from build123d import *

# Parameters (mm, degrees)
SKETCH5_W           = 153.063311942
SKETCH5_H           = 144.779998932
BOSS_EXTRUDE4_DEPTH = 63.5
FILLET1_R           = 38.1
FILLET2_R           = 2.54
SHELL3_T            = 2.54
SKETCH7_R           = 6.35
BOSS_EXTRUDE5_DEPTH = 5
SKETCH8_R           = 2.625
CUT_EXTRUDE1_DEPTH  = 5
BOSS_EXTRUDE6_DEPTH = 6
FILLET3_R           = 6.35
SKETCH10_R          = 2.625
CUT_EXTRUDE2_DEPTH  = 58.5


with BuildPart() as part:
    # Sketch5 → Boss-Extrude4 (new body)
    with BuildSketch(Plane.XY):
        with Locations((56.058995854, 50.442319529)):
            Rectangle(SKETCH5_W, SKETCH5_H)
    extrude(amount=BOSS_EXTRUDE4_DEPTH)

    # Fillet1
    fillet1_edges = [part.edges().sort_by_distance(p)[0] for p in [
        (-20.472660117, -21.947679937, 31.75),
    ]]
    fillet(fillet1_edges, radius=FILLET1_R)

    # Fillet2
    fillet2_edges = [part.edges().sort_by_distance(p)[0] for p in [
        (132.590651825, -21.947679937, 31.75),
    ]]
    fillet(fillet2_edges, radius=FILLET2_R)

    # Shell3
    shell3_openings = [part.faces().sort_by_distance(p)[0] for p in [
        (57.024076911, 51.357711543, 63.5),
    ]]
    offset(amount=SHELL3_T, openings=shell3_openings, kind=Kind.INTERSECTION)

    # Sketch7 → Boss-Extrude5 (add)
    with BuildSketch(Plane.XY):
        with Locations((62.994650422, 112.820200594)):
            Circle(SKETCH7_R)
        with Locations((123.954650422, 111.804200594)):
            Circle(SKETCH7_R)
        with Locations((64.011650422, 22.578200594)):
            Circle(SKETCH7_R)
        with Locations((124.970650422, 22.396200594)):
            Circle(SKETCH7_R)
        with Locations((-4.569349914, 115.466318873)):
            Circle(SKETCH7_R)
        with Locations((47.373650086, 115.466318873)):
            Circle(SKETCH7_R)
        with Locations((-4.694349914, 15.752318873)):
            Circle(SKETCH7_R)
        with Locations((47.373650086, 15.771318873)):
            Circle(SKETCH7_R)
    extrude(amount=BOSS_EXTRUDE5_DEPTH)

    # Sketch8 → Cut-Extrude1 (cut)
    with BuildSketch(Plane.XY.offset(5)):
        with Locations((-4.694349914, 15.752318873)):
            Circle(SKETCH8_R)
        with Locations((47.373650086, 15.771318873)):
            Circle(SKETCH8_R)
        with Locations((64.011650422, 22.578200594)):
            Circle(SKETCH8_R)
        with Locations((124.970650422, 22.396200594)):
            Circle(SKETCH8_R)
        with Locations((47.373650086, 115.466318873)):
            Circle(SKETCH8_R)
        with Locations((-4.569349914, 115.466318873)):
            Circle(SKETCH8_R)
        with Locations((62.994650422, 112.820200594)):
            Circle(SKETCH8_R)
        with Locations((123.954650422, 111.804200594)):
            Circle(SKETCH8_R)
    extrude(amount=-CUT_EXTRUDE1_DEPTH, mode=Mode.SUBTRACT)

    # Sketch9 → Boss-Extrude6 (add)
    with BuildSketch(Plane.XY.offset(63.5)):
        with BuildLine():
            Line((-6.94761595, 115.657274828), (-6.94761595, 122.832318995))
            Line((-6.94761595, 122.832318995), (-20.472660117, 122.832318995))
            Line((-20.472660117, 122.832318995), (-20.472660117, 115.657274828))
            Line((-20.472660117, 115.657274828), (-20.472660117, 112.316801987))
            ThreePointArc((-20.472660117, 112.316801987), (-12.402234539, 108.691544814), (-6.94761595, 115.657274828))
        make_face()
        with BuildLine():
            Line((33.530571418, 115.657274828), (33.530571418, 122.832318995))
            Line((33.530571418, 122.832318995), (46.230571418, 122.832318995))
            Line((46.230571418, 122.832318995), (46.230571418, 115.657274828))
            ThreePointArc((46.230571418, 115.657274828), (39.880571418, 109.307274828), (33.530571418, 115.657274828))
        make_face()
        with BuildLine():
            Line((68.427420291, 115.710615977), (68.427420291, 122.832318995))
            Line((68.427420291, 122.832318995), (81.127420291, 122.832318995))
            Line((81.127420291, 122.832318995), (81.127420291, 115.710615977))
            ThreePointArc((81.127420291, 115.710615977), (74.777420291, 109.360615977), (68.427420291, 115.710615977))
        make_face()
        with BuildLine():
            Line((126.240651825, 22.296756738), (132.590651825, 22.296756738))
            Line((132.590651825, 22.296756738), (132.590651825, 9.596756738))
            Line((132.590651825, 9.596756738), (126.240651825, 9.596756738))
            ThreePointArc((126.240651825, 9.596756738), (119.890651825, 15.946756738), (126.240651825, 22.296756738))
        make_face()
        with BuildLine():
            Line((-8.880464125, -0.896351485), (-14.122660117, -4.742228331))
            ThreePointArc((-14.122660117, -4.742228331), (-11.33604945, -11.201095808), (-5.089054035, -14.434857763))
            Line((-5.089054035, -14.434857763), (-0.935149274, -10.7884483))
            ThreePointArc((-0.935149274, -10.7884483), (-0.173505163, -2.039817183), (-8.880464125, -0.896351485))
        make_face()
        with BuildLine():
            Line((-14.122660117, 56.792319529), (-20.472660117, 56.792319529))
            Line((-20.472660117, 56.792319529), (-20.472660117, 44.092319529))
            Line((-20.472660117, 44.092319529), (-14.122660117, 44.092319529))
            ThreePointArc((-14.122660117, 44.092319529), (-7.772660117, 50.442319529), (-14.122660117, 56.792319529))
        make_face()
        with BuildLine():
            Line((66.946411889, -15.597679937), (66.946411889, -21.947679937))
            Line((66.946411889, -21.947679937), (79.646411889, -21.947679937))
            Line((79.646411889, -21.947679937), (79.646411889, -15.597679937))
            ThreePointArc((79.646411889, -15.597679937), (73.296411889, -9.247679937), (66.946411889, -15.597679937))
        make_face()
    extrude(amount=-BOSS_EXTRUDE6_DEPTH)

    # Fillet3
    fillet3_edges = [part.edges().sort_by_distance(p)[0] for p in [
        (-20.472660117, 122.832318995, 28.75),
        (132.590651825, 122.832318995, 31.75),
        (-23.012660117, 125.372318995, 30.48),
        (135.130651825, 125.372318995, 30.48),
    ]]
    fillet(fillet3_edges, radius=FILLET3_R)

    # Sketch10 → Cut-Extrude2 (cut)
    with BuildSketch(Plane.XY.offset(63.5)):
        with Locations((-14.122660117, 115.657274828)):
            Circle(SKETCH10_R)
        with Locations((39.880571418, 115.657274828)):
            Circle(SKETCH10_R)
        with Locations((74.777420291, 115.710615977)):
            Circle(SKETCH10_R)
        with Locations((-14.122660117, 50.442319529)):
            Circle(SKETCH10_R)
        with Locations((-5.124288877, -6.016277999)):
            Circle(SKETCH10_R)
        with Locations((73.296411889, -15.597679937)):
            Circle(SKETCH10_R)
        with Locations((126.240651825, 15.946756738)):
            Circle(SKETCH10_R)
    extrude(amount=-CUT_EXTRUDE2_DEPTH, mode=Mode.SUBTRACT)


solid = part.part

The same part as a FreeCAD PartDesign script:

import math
import FreeCAD as App
import Part
import Sketcher

V = App.Vector
Q = App.Units.Quantity


def edges_at(feature, points):
    """Names of the edges that pass closest to the given points."""
    edges = feature.Shape.Edges
    near = lambda p: min(range(len(edges)), key=lambda i: edges[i].distToShape(Part.Vertex(*p))[0])
    return sorted({f"Edge{near(p) + 1}" for p in points})


def faces_at(feature, points):
    """Names of the faces that lie closest to the given points."""
    faces = feature.Shape.Faces
    near = lambda p: min(range(len(faces)), key=lambda i: faces[i].distToShape(Part.Vertex(*p))[0])
    return sorted({f"Face{near(p) + 1}" for p in points})


def add_polygon(sketch, points):
    """Adds a closed chain of lines whose ends are joined by coincident constraints."""
    first, n = sketch.GeometryCount, len(points)
    for a, b in zip(points, points[1:] + points[:1]):
        sketch.addGeometry(Part.LineSegment(App.Vector(*a, 0), App.Vector(*b, 0)), False)
    for i in range(n):
        sketch.addConstraint(Sketcher.Constraint("Coincident", first + i, 2, first + (i + 1) % n, 1))

doc = App.newDocument("Part")
body = doc.addObject("PartDesign::Body", "Body")

# Sketch on XY plane
sketch1 = body.newObject("Sketcher::SketchObject", "Sketch")
sketch1.AttachmentSupport = (doc.getObject("XY_Plane"), [""])
sketch1.MapMode = "FlatFace"
add_polygon(sketch1, [(-20.47266, 122.832319), (-20.47266, -21.94768), (132.590652, -21.94768), (132.590652, 122.832319)])  # lines 0-3
sketch1.addConstraint([
    Sketcher.Constraint("Vertical", 0),
    Sketcher.Constraint("Horizontal", 1),
    Sketcher.Constraint("Vertical", 2),
    Sketcher.Constraint("Horizontal", 3),
    Sketcher.Constraint("DistanceY", 0, 2, 0, 1, Q("5.7 in")),
    Sketcher.Constraint("DistanceX", 1, 1, 1, 2, 153.063312),
    Sketcher.Constraint("DistanceX", 0, 2, -1, 1, 20.47266),
    Sketcher.Constraint("DistanceY", 0, 2, -1, 1, 21.94768),
])
pad1 = body.newObject("PartDesign::Pad", "Pad")
pad1.Profile = sketch1
pad1.Length = Q("2.5 in")
doc.recompute()

fillet = body.newObject("PartDesign::Fillet", "Fillet")
fillet.Base = (pad1, edges_at(pad1, [(-20.473, -21.948, 31.75)]))
fillet.Radius = Q("1.5 in")
doc.recompute()

fillet2 = body.newObject("PartDesign::Fillet", "Fillet001")
fillet2.Base = (fillet, edges_at(fillet, [(132.591, -21.948, 31.75)]))
fillet2.Radius = Q("0.1 in")
doc.recompute()

thickness = body.newObject("PartDesign::Thickness", "Thickness")
thickness.Base = (fillet2, faces_at(fillet2, [(56.059, 50.442, 63.5)]))
thickness.Value = Q("0.1 in")
thickness.Reversed = False
thickness.Join = "Intersection"

# Sketch on XY plane
sketch2 = body.newObject("Sketcher::SketchObject", "Sketch001")
sketch2.AttachmentSupport = (doc.getObject("XY_Plane"), [""])
sketch2.MapMode = "FlatFace"
sketch2.addGeometry([
    Part.Circle(V(62.99465, 112.820201, 0), V(0, 0, 1), 6.35),  # 0
    Part.Circle(V(123.95465, 111.804201, 0), V(0, 0, 1), 6.35),  # 1
    Part.Circle(V(64.01165, 22.578201, 0), V(0, 0, 1), 6.35),  # 2
    Part.Circle(V(124.97065, 22.396201, 0), V(0, 0, 1), 6.35),  # 3
    Part.Circle(V(-4.56935, 115.466319, 0), V(0, 0, 1), 6.35),  # 4
    Part.Circle(V(47.37365, 115.466319, 0), V(0, 0, 1), 6.35),  # 5
    Part.Circle(V(-4.69435, 15.752319, 0), V(0, 0, 1), 6.35),  # 6
    Part.Circle(V(47.37365, 15.771319, 0), V(0, 0, 1), 6.35),  # 7
], False)
sketch2.addConstraint([
    Sketcher.Constraint("Equal", 0, 1),
    Sketcher.Constraint("Equal", 1, 2),
    Sketcher.Constraint("Equal", 2, 3),
    Sketcher.Constraint("Equal", 3, 4),
    Sketcher.Constraint("Equal", 4, 5),
    Sketcher.Constraint("Equal", 5, 6),
    Sketcher.Constraint("Equal", 6, 7),
    Sketcher.Constraint("Horizontal", 4, 3, 5, 3),
    Sketcher.Constraint("Vertical", 5, 3, 7, 3),
    Sketcher.Constraint("Diameter", 0, Q("0.5 in")),
    Sketcher.Constraint("DistanceX", 0, 3, 1, 3, Q("2.4 in")),
    Sketcher.Constraint("DistanceX", 4, 3, 3, 3, Q("5.1 in")),
    Sketcher.Constraint("DistanceY", 1, 3, 0, 3, Q("0.04 in")),
    Sketcher.Constraint("DistanceX", 1, 3, 3, 3, Q("0.04 in")),
    Sketcher.Constraint("DistanceY", 3, 3, 1, 3, Q("3.52 in")),
    Sketcher.Constraint("DistanceX", 5, 3, 0, 3, Q("0.615 in")),
    Sketcher.Constraint("DistanceY", 7, 3, 5, 3, Q("3.925 in")),
    Sketcher.Constraint("DistanceY", -1, 1, 0, 3, 112.820201),
    Sketcher.Constraint("DistanceY", -1, 1, 2, 3, 22.578201),
    Sketcher.Constraint("DistanceX", 0, 3, 2, 3, 1.017),
    Sketcher.Constraint("DistanceX", 6, 3, 2, 3, 68.706),
    Sketcher.Constraint("DistanceY", 6, 3, 4, 3, 99.714),
    Sketcher.Constraint("DistanceX", -1, 1, 0, 3, 62.99465),
    Sketcher.Constraint("DistanceY", -1, 1, 4, 3, 115.466319),
])
pad2 = body.newObject("PartDesign::Pad", "Pad001")
pad2.Profile = sketch2
pad2.Length = 5

# Sketch on XY plane
sketch3 = body.newObject("Sketcher::SketchObject", "Sketch002")
sketch3.AttachmentSupport = (doc.getObject("XY_Plane"), [""])
sketch3.MapMode = "FlatFace"
sketch3.AttachmentOffset = App.Placement(V(0, 0, 5), App.Rotation())
sketch3.addGeometry([
    Part.Circle(V(-4.69435, 15.752319, 0), V(0, 0, 1), 2.625),  # 0
    Part.Circle(V(47.37365, 15.771319, 0), V(0, 0, 1), 2.625),  # 1
    Part.Circle(V(64.01165, 22.578201, 0), V(0, 0, 1), 2.625),  # 2
    Part.Circle(V(124.97065, 22.396201, 0), V(0, 0, 1), 2.625),  # 3
    Part.Circle(V(47.37365, 115.466319, 0), V(0, 0, 1), 2.625),  # 4
    Part.Circle(V(-4.56935, 115.466319, 0), V(0, 0, 1), 2.625),  # 5
    Part.Circle(V(62.99465, 112.820201, 0), V(0, 0, 1), 2.625),  # 6
    Part.Circle(V(123.95465, 111.804201, 0), V(0, 0, 1), 2.625),  # 7
], False)
sketch3.addConstraint([
    Sketcher.Constraint("Equal", 0, 1),
    Sketcher.Constraint("Equal", 1, 2),
    Sketcher.Constraint("Equal", 2, 3),
    Sketcher.Constraint("Equal", 3, 4),
    Sketcher.Constraint("Equal", 4, 5),
    Sketcher.Constraint("Equal", 5, 6),
    Sketcher.Constraint("Equal", 6, 7),
    Sketcher.Constraint("Horizontal", 4, 3, 5, 3),
    Sketcher.Constraint("Vertical", 1, 3, 4, 3),
    Sketcher.Constraint("DistanceX", 5, 3, 3, 3, Q("5.1 in")),
    Sketcher.Constraint("DistanceX", 6, 3, 7, 3, Q("2.4 in")),
    Sketcher.Constraint("Diameter", 0, 5.25),
    Sketcher.Constraint("DistanceX", 5, 3, 6, 3, Q("2.66 in")),
    Sketcher.Constraint("DistanceY", 3, 3, 6, 3, Q("3.56 in")),
    Sketcher.Constraint("DistanceY", 7, 3, 6, 3, Q("0.04 in")),
    Sketcher.Constraint("DistanceX", 1, 3, 3, 3, Q("3.055 in")),
    Sketcher.Constraint("DistanceY", 1, 3, 4, 3, Q("3.925 in")),
    Sketcher.Constraint("DistanceY", -1, 1, 2, 3, 22.578201),
    Sketcher.Constraint("DistanceY", -1, 1, 3, 3, 22.396201),
    Sketcher.Constraint("DistanceX", 0, 3, 1, 3, 52.068),
    Sketcher.Constraint("DistanceY", 0, 3, 1, 3, 0.019),
    Sketcher.Constraint("DistanceX", 1, 3, 2, 3, 16.638),
    Sketcher.Constraint("DistanceX", 0, 3, -1, 1, 4.69435),
    Sketcher.Constraint("DistanceY", -1, 1, 0, 3, 15.752319),
])
pocket1 = body.newObject("PartDesign::Pocket", "Pocket")
pocket1.Profile = sketch3
pocket1.Length = 5

# Sketch on XY plane
sketch4 = body.newObject("Sketcher::SketchObject", "Sketch003")
sketch4.AttachmentSupport = (doc.getObject("XY_Plane"), [""])
sketch4.MapMode = "FlatFace"
sketch4.AttachmentOffset = App.Placement(V(0, 0, 2.5 * 25.4), App.Rotation())
sketch4.addGeometry([
    Part.LineSegment(V(-6.947616, 115.657275, 0), V(-6.947616, 122.832319, 0)),  # 0
    Part.LineSegment(V(-6.947616, 122.832319, 0), V(-20.47266, 122.832319, 0)),  # 1
    Part.LineSegment(V(-20.47266, 122.832319, 0), V(-20.47266, 112.316802, 0)),  # 2
    Part.ArcOfCircle(Part.Circle(V(-14.12266, 115.657275, 0), V(0, 0, 1), 7.175044), math.radians(-152.252995), math.radians(0)),  # 3
    Part.LineSegment(V(33.530571, 122.832319, 0), V(33.530571, 115.657275, 0)),  # 4
    Part.ArcOfCircle(Part.Circle(V(39.880571, 115.657275, 0), V(0, 0, 1), 6.35), math.radians(180), math.radians(360)),  # 5
    Part.LineSegment(V(46.230571, 115.657275, 0), V(46.230571, 122.832319, 0)),  # 6
    Part.LineSegment(V(46.230571, 122.832319, 0), V(33.530571, 122.832319, 0)),  # 7
    Part.LineSegment(V(68.42742, 122.832319, 0), V(68.42742, 115.710616, 0)),  # 8
    Part.ArcOfCircle(Part.Circle(V(74.77742, 115.710616, 0), V(0, 0, 1), 6.35), math.radians(180), math.radians(360)),  # 9
    Part.LineSegment(V(81.12742, 115.710616, 0), V(81.12742, 122.832319, 0)),  # 10
    Part.LineSegment(V(81.12742, 122.832319, 0), V(68.42742, 122.832319, 0)),  # 11
    Part.LineSegment(V(132.590652, 22.296757, 0), V(126.240652, 22.296757, 0)),  # 12
    Part.ArcOfCircle(Part.Circle(V(126.240652, 15.946757, 0), V(0, 0, 1), 6.35), math.radians(90), math.radians(270)),  # 13
    Part.LineSegment(V(126.240652, 9.596757, 0), V(132.590652, 9.596757, 0)),  # 14
    Part.LineSegment(V(132.590652, 9.596757, 0), V(132.590652, 22.296757, 0)),  # 15
    Part.LineSegment(V(-8.880464, -0.896351, 0), V(-14.12266, -4.742228, 0)),  # 16
    Part.ArcOfCircle(Part.Circle(V(-3.683625, -4.068977, 0), V(0, 0, 1), 10.460723), math.radians(-176.309897), math.radians(-97.721205)),  # 17
    Part.LineSegment(V(-5.089054, -14.434858, 0), V(-0.935149, -10.788448, 0)),  # 18
    Part.ArcOfCircle(Part.Circle(V(-5.124289, -6.016278, 0), V(0, 0, 1), 6.35), math.radians(-48.722467), math.radians(126.265207)),  # 19
    Part.LineSegment(V(-14.12266, 56.79232, 0), V(-20.47266, 56.79232, 0)),  # 20
    Part.LineSegment(V(-20.47266, 56.79232, 0), V(-20.47266, 44.09232, 0)),  # 21
    Part.LineSegment(V(-20.47266, 44.09232, 0), V(-14.12266, 44.09232, 0)),  # 22
    Part.ArcOfCircle(Part.Circle(V(-14.12266, 50.44232, 0), V(0, 0, 1), 6.35), math.radians(-90), math.radians(90)),  # 23
    Part.LineSegment(V(66.946412, -15.59768, 0), V(66.946412, -21.94768, 0)),  # 24
    Part.LineSegment(V(66.946412, -21.94768, 0), V(79.646412, -21.94768, 0)),  # 25
    Part.LineSegment(V(79.646412, -21.94768, 0), V(79.646412, -15.59768, 0)),  # 26
    Part.ArcOfCircle(Part.Circle(V(73.296412, -15.59768, 0), V(0, 0, 1), 6.35), math.radians(0), math.radians(180)),  # 27
], False)
sketch4.addConstraint([
    Sketcher.Constraint("Coincident", 0, 2, 1, 1),
    Sketcher.Constraint("Coincident", 1, 2, 2, 1),
    Sketcher.Constraint("Coincident", 2, 2, 3, 1),
    Sketcher.Constraint("Tangent", 3, 2, 0, 1),
    Sketcher.Constraint("Tangent", 4, 2, 5, 1),
    Sketcher.Constraint("Tangent", 5, 2, 6, 1),
    Sketcher.Constraint("Coincident", 6, 2, 7, 1),
    Sketcher.Constraint("Coincident", 7, 2, 4, 1),
    Sketcher.Constraint("Tangent", 8, 2, 9, 1),
    Sketcher.Constraint("Tangent", 9, 2, 10, 1),
    Sketcher.Constraint("Coincident", 10, 2, 11, 1),
    Sketcher.Constraint("Coincident", 11, 2, 8, 1),
    Sketcher.Constraint("Tangent", 12, 2, 13, 1),
    Sketcher.Constraint("Tangent", 13, 2, 14, 1),
    Sketcher.Constraint("Coincident", 14, 2, 15, 1),
    Sketcher.Constraint("Coincident", 15, 2, 12, 1),
    Sketcher.Constraint("Coincident", 16, 2, 17, 1),
    Sketcher.Constraint("Coincident", 17, 2, 18, 1),
    Sketcher.Constraint("Tangent", 18, 2, 19, 1),
    Sketcher.Constraint("Tangent", 19, 2, 16, 1),
    Sketcher.Constraint("Coincident", 20, 2, 21, 1),
    Sketcher.Constraint("Coincident", 21, 2, 22, 1),
    Sketcher.Constraint("Tangent", 22, 2, 23, 1),
    Sketcher.Constraint("Tangent", 23, 2, 20, 1),
    Sketcher.Constraint("Coincident", 24, 2, 25, 1),
    Sketcher.Constraint("Coincident", 25, 2, 26, 1),
    Sketcher.Constraint("Tangent", 26, 2, 27, 1),
    Sketcher.Constraint("Tangent", 27, 2, 24, 1),
    Sketcher.Constraint("Vertical", 0),
    Sketcher.Constraint("Horizontal", 1),
    Sketcher.Constraint("Vertical", 2),
    Sketcher.Constraint("Vertical", 4),
    Sketcher.Constraint("Vertical", 6),
    Sketcher.Constraint("Horizontal", 7),
    Sketcher.Constraint("Vertical", 8),
    Sketcher.Constraint("Vertical", 10),
    Sketcher.Constraint("Horizontal", 11),
    Sketcher.Constraint("Horizontal", 12),
    Sketcher.Constraint("Horizontal", 14),
    Sketcher.Constraint("Vertical", 15),
    Sketcher.Constraint("Horizontal", 20),
    Sketcher.Constraint("Vertical", 21),
    Sketcher.Constraint("Horizontal", 22),
    Sketcher.Constraint("Vertical", 24),
    Sketcher.Constraint("Horizontal", 25),
    Sketcher.Constraint("Vertical", 26),
    Sketcher.Constraint("Equal", 5, 9),
    Sketcher.Constraint("Equal", 9, 13),
    Sketcher.Constraint("Equal", 13, 19),
    Sketcher.Constraint("Equal", 19, 23),
    Sketcher.Constraint("Equal", 23, 27),
    Sketcher.Constraint("Horizontal", 3, 3, 5, 3),
    Sketcher.Constraint("Horizontal", 1, 2, 6, 2),
    Sketcher.Constraint("Horizontal", 7, 2, 10, 2),
    Sketcher.Constraint("Vertical", 3, 3, 23, 3),
    Sketcher.Constraint("Vertical", 23, 3, 16, 2),
    Sketcher.Constraint("Vertical", 2, 2, 20, 2),
    Sketcher.Constraint("Equal", 14, 20),
    Sketcher.Constraint("Equal", 22, 24),
    Sketcher.Constraint("Radius", 5, Q("0.25 in")),
    Sketcher.Constraint("DistanceX", 12, 2, 12, 1, Q("0.25 in")),
    Sketcher.Constraint("DistanceY", 27, 3, 23, 3, Q("2.6 in")),
    Sketcher.Constraint("DistanceY", 23, 3, 0, 2, Q("2.85 in")),
    Sketcher.Constraint("Radius", 3, 7.175044),
    Sketcher.Constraint("Radius", 17, 10.460723),
    Sketcher.Constraint("DistanceY", 5, 3, 9, 3, Q("0.0021 in")),
    Sketcher.Constraint("DistanceX", 19, 2, 17, 3, Q("0.2046 in")),
    Sketcher.Constraint("DistanceY", -1, 1, 2, 2, 112.316802),
    Sketcher.Constraint("DistanceY", 19, 3, 17, 3, 1.947301),
    Sketcher.Constraint("DistanceX", 19, 3, 27, 3, 78.420701),
    Sketcher.Constraint("DistanceY", 27, 3, 19, 3, 9.581402),
    Sketcher.Constraint("DistanceY", 0, 1, 0, 2, 7.175044),
    Sketcher.Constraint("DistanceX", 3, 3, -1, 1, 14.12266),
    Sketcher.Constraint("DistanceX", -1, 1, 5, 3, 39.880571),
    Sketcher.Constraint("DistanceX", -1, 1, 9, 3, 74.77742),
    Sketcher.Constraint("DistanceX", -1, 1, 13, 3, 126.240652),
    Sketcher.Constraint("DistanceX", 19, 3, -1, 1, 5.124289),
    Sketcher.Constraint("DistanceX", 18, 2, -1, 1, 0.935149),
    Sketcher.Constraint("DistanceY", 13, 3, 9, 3, 99.763859),
])
pad3 = body.newObject("PartDesign::Pad", "Pad002")
pad3.Profile = sketch4
pad3.Length = 6
pad3.Reversed = True
doc.recompute()

fillet3 = body.newObject("PartDesign::Fillet", "Fillet002")
fillet3.Base = (pad3, edges_at(pad3, [
    (-20.473, 122.832, 28.75),
    (132.591, 122.832, 31.75),
    (-23.013, 125.372, 30.48),
    (135.131, 125.372, 30.48),
]))
fillet3.Radius = Q("0.25 in")

# Sketch on XY plane
sketch5 = body.newObject("Sketcher::SketchObject", "Sketch004")
sketch5.AttachmentSupport = (doc.getObject("XY_Plane"), [""])
sketch5.MapMode = "FlatFace"
sketch5.AttachmentOffset = App.Placement(V(0, 0, 2.5 * 25.4), App.Rotation())
sketch5.addGeometry([
    Part.Circle(V(-14.12266, 115.657275, 0), V(0, 0, 1), 2.625),  # 0
    Part.Circle(V(39.880571, 115.657275, 0), V(0, 0, 1), 2.625),  # 1
    Part.Circle(V(74.77742, 115.710616, 0), V(0, 0, 1), 2.625),  # 2
    Part.Circle(V(-14.12266, 50.44232, 0), V(0, 0, 1), 2.625),  # 3
    Part.Circle(V(-5.124289, -6.016278, 0), V(0, 0, 1), 2.625),  # 4
    Part.Circle(V(73.296412, -15.59768, 0), V(0, 0, 1), 2.625),  # 5
    Part.Circle(V(126.240652, 15.946757, 0), V(0, 0, 1), 2.625),  # 6
], False)
sketch5.addConstraint([
    Sketcher.Constraint("Equal", 0, 1),
    Sketcher.Constraint("Equal", 1, 2),
    Sketcher.Constraint("Equal", 2, 3),
    Sketcher.Constraint("Equal", 3, 4),
    Sketcher.Constraint("Equal", 4, 5),
    Sketcher.Constraint("Equal", 5, 6),
    Sketcher.Constraint("Horizontal", 0, 3, 1, 3),
    Sketcher.Constraint("Vertical", 0, 3, 3, 3),
    Sketcher.Constraint("DistanceY", 5, 3, 3, 3, Q("2.6 in")),
    Sketcher.Constraint("Diameter", 0, 5.25),
    Sketcher.Constraint("DistanceY", 1, 3, 2, 3, Q("0.0021 in")),
    Sketcher.Constraint("DistanceX", 4, 3, 5, 3, 78.420701),
    Sketcher.Constraint("DistanceY", 5, 3, 4, 3, 9.581402),
    Sketcher.Constraint("DistanceX", 0, 3, -1, 1, 14.12266),
    Sketcher.Constraint("DistanceX", -1, 1, 1, 3, 39.880571),
    Sketcher.Constraint("DistanceX", -1, 1, 2, 3, 74.77742),
    Sketcher.Constraint("DistanceY", -1, 1, 3, 3, 50.44232),
    Sketcher.Constraint("DistanceX", 4, 3, -1, 1, 5.124289),
    Sketcher.Constraint("DistanceX", -1, 1, 6, 3, 126.240652),
    Sketcher.Constraint("DistanceY", 6, 3, 2, 3, 99.763859),
    Sketcher.Constraint("DistanceY", -1, 1, 0, 3, 115.657275),
])
pocket2 = body.newObject("PartDesign::Pocket", "Pocket001")
pocket2.Profile = sketch5
pocket2.Length = 58.5

doc.recompute()
